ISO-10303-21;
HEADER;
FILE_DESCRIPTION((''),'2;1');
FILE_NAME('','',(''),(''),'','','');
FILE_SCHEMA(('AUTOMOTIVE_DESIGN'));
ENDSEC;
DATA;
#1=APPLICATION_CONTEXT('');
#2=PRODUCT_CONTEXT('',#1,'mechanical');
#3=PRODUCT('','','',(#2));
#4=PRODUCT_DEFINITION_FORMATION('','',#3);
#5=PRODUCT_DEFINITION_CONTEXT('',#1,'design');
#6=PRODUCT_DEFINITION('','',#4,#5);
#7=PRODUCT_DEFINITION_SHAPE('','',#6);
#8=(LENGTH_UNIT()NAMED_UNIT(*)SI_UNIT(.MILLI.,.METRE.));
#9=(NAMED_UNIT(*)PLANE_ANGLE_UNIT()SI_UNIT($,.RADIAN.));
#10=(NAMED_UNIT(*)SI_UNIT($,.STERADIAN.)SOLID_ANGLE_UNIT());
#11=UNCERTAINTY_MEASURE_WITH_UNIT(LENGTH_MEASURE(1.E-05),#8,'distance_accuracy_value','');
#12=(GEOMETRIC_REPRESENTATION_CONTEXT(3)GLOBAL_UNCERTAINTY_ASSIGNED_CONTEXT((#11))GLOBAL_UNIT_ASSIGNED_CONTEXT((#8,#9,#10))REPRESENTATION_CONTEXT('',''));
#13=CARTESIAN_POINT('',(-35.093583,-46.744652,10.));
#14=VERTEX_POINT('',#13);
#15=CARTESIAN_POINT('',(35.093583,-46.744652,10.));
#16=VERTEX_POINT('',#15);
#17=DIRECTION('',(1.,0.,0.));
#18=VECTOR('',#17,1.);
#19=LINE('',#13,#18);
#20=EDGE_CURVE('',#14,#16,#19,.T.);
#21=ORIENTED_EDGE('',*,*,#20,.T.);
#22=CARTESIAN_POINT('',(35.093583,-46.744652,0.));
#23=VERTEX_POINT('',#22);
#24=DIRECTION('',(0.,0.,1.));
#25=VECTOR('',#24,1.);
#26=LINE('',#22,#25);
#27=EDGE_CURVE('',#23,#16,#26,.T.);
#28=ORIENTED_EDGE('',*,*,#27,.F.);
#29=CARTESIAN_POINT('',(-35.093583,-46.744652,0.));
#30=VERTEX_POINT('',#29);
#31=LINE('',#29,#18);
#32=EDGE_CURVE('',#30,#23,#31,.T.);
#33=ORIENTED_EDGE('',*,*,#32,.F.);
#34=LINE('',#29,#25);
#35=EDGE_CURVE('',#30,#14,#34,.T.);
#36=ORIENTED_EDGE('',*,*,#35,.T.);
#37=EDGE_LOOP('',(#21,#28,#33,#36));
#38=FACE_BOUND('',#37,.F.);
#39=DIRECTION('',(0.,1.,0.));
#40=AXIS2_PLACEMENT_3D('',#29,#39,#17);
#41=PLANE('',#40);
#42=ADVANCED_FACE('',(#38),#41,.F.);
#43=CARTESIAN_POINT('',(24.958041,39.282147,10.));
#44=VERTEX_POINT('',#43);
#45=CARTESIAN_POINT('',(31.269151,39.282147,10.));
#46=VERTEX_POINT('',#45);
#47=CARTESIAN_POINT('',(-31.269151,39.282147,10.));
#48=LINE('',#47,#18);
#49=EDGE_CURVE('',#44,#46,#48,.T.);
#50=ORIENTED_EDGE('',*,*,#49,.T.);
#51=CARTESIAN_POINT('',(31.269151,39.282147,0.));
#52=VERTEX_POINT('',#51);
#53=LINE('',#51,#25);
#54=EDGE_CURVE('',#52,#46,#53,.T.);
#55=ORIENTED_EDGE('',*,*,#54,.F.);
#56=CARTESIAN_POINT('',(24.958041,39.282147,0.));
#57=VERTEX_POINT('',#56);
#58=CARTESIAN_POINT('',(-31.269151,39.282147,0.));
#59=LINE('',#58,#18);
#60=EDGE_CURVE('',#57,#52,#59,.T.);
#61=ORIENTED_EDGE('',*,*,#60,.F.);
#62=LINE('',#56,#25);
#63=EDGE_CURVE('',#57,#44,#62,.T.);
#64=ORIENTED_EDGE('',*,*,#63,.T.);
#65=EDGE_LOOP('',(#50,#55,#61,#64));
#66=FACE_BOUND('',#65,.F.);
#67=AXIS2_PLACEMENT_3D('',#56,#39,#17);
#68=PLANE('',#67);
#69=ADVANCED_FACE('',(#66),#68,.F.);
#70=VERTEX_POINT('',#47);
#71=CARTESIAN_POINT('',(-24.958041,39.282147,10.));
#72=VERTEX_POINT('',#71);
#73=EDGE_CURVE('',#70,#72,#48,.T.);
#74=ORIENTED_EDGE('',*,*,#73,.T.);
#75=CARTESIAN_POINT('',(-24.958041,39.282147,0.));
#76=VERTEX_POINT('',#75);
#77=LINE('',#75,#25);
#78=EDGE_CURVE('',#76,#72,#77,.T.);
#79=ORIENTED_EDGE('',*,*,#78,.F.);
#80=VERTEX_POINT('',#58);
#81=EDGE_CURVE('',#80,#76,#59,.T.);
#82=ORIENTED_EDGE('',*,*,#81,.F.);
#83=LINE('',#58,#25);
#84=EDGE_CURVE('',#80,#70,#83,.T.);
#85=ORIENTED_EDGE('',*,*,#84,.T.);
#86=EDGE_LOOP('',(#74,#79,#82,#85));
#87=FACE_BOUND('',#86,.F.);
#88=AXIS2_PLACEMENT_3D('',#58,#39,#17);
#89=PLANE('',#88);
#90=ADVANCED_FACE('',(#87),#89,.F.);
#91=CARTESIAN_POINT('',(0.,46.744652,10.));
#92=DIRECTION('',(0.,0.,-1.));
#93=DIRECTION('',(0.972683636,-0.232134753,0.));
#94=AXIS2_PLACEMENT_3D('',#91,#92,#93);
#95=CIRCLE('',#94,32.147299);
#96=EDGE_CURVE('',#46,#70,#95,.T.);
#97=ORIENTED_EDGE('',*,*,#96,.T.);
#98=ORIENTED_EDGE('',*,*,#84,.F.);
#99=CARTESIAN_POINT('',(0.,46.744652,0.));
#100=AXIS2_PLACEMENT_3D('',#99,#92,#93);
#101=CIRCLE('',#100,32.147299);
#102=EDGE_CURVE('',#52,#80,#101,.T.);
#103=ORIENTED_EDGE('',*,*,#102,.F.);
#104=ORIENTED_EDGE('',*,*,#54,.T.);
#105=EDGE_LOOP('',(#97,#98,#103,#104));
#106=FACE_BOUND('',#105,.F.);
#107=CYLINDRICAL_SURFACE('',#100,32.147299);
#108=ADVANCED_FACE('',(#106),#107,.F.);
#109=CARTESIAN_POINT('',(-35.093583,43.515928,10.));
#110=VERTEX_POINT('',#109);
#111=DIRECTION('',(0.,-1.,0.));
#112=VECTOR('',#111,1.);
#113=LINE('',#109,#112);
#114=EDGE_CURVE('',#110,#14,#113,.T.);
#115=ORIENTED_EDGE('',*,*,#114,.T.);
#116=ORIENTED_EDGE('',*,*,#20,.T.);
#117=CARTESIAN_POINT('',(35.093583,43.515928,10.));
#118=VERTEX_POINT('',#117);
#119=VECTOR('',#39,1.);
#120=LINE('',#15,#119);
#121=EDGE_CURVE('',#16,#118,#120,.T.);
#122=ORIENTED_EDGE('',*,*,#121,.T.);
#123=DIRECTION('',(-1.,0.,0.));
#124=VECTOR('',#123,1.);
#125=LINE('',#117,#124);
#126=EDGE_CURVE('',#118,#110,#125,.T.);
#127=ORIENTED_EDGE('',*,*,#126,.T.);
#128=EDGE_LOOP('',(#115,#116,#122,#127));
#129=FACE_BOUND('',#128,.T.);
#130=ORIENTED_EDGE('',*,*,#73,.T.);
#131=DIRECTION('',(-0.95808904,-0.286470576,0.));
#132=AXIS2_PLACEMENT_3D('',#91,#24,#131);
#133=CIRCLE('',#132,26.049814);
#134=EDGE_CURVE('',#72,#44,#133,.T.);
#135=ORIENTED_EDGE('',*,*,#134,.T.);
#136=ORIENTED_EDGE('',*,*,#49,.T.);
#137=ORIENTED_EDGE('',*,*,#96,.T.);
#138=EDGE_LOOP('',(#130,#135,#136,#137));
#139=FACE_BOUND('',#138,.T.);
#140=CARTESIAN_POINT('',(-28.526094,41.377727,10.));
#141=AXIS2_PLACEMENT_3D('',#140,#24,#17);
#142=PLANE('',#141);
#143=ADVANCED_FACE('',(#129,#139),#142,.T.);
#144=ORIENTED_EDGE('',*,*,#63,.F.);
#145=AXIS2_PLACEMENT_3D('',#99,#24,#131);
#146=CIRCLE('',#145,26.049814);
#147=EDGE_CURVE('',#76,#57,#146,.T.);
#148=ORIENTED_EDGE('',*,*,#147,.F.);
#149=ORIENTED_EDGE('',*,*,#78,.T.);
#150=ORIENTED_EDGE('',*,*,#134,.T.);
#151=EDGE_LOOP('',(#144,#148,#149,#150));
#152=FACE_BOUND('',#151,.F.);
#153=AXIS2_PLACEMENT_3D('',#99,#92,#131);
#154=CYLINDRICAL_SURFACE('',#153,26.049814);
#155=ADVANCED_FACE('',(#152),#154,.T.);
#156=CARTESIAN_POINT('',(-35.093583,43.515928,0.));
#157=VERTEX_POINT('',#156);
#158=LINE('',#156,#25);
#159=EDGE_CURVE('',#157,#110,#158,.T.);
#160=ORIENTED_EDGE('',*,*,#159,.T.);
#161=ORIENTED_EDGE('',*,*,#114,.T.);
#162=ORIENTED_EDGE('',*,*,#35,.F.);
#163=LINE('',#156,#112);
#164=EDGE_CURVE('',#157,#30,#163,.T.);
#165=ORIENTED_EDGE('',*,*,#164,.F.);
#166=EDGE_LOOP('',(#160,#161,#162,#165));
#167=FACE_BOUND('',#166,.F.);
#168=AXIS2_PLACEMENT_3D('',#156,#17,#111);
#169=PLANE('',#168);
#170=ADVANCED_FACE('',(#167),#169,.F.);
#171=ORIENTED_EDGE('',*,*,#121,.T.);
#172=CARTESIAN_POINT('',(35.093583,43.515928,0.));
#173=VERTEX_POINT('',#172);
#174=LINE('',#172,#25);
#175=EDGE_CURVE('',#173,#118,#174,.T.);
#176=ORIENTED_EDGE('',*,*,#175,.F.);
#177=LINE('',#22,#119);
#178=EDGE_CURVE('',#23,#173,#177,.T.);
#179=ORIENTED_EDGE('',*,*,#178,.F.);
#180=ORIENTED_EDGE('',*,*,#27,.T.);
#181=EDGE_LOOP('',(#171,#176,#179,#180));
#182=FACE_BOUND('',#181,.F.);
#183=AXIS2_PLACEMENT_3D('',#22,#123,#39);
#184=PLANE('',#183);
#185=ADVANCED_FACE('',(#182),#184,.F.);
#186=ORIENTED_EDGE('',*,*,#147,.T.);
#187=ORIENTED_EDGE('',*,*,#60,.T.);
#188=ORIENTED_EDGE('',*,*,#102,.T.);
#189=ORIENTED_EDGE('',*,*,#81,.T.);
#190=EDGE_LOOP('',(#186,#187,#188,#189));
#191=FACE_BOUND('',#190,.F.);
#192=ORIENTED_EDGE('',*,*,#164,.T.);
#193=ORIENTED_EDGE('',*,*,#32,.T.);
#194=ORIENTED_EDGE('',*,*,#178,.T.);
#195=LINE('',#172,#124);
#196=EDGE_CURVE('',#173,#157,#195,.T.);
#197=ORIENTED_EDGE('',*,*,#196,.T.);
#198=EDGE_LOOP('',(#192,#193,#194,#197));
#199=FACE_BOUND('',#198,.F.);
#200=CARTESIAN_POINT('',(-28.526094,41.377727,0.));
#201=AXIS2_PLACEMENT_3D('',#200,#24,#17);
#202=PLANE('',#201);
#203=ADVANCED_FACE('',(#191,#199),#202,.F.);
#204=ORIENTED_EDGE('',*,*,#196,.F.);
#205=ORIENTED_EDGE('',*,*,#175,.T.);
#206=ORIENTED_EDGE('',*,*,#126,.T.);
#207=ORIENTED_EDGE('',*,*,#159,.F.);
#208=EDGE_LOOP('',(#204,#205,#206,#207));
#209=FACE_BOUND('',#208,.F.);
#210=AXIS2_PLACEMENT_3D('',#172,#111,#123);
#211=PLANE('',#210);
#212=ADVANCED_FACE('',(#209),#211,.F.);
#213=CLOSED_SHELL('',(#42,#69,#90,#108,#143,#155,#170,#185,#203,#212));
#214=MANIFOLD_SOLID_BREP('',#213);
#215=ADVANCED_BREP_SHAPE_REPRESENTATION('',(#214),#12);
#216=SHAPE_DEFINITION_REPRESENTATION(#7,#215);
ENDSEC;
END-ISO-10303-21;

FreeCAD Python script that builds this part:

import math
import FreeCAD as App
import Part
import Sketcher
from FreeCAD import Vector

doc = App.newDocument("Part")
body = doc.addObject("PartDesign::Body", "Body")

sketch1 = body.newObject("Sketcher::SketchObject", "Sketch")
sketch1.AttachmentSupport = (doc.getObject("XY_Plane"), [""])
sketch1.MapMode = "FlatFace"
sketch1.addGeometry([
    Part.LineSegment(Vector(35, -47, 0), Vector(35, 44, 0)),
    Part.LineSegment(Vector(35, 44, 0), Vector(-35, 44, 0)),
    Part.LineSegment(Vector(-35, 44, 0), Vector(-35, -47, 0)),
    Part.LineSegment(Vector(-35, -47, 0), Vector(35, -47, 0)),
    Part.LineSegment(Vector(-31, 39, 0), Vector(-25, 39, 0)),
    Part.ArcOfCircle(Part.Circle(Vector(0, 47, 0), Vector(0, 0, 1), 26), math.radians(-163), math.radians(-17)),
    Part.LineSegment(Vector(25, 39, 0), Vector(31, 39, 0)),
    Part.ArcOfCircle(Part.Circle(Vector(0, 47, 0), Vector(0, 0, 1), 32), math.radians(-167), math.radians(-13)),
], False)
sketch1.addConstraint([
    Sketcher.Constraint("Coincident", 0, 2, 1, 1),
    Sketcher.Constraint("Coincident", 1, 2, 2, 1),
    Sketcher.Constraint("Coincident", 2, 2, 3, 1),
    Sketcher.Constraint("Coincident", 3, 2, 0, 1),
    Sketcher.Constraint("Coincident", 4, 2, 5, 1),
    Sketcher.Constraint("Coincident", 5, 2, 6, 1),
    Sketcher.Constraint("Coincident", 6, 2, 7, 2),
    Sketcher.Constraint("Coincident", 7, 1, 4, 1),
    Sketcher.Constraint("Vertical", 0),
    Sketcher.Constraint("Horizontal", 1),
    Sketcher.Constraint("Vertical", 2),
    Sketcher.Constraint("Horizontal", 3),
    Sketcher.Constraint("Horizontal", 4),
    Sketcher.Constraint("Horizontal", 6),
    Sketcher.Constraint("Coincident", 7, 3, 5, 3),
    Sketcher.Constraint("Symmetric", 4, 2, 5, 2, -2),
    Sketcher.Constraint("Radius", 7, 32.147299),
    Sketcher.Constraint("Radius", 5, 26.049814),
    Sketcher.Constraint("DistanceX", 4, 1, 4, 2, 6.31111),
    Sketcher.Constraint("DistanceY", 0, 1, 0, 2, 90.26058),
    Sketcher.Constraint("DistanceY", 2, 2, 4, 2, 86.026799),
    Sketcher.Constraint("DistanceX", 1, 2, 1, 1, 70.187166),
    Sketcher.Constraint("DistanceY", -1, 1, 0, 2, 43.515928),
    Sketcher.Constraint("DistanceX", 1, 2, 4, 2, 10.135542),
])
pad1 = body.newObject("PartDesign::Pad", "Pad")
pad1.Profile = sketch1
pad1.Length = 10

doc.recompute()
